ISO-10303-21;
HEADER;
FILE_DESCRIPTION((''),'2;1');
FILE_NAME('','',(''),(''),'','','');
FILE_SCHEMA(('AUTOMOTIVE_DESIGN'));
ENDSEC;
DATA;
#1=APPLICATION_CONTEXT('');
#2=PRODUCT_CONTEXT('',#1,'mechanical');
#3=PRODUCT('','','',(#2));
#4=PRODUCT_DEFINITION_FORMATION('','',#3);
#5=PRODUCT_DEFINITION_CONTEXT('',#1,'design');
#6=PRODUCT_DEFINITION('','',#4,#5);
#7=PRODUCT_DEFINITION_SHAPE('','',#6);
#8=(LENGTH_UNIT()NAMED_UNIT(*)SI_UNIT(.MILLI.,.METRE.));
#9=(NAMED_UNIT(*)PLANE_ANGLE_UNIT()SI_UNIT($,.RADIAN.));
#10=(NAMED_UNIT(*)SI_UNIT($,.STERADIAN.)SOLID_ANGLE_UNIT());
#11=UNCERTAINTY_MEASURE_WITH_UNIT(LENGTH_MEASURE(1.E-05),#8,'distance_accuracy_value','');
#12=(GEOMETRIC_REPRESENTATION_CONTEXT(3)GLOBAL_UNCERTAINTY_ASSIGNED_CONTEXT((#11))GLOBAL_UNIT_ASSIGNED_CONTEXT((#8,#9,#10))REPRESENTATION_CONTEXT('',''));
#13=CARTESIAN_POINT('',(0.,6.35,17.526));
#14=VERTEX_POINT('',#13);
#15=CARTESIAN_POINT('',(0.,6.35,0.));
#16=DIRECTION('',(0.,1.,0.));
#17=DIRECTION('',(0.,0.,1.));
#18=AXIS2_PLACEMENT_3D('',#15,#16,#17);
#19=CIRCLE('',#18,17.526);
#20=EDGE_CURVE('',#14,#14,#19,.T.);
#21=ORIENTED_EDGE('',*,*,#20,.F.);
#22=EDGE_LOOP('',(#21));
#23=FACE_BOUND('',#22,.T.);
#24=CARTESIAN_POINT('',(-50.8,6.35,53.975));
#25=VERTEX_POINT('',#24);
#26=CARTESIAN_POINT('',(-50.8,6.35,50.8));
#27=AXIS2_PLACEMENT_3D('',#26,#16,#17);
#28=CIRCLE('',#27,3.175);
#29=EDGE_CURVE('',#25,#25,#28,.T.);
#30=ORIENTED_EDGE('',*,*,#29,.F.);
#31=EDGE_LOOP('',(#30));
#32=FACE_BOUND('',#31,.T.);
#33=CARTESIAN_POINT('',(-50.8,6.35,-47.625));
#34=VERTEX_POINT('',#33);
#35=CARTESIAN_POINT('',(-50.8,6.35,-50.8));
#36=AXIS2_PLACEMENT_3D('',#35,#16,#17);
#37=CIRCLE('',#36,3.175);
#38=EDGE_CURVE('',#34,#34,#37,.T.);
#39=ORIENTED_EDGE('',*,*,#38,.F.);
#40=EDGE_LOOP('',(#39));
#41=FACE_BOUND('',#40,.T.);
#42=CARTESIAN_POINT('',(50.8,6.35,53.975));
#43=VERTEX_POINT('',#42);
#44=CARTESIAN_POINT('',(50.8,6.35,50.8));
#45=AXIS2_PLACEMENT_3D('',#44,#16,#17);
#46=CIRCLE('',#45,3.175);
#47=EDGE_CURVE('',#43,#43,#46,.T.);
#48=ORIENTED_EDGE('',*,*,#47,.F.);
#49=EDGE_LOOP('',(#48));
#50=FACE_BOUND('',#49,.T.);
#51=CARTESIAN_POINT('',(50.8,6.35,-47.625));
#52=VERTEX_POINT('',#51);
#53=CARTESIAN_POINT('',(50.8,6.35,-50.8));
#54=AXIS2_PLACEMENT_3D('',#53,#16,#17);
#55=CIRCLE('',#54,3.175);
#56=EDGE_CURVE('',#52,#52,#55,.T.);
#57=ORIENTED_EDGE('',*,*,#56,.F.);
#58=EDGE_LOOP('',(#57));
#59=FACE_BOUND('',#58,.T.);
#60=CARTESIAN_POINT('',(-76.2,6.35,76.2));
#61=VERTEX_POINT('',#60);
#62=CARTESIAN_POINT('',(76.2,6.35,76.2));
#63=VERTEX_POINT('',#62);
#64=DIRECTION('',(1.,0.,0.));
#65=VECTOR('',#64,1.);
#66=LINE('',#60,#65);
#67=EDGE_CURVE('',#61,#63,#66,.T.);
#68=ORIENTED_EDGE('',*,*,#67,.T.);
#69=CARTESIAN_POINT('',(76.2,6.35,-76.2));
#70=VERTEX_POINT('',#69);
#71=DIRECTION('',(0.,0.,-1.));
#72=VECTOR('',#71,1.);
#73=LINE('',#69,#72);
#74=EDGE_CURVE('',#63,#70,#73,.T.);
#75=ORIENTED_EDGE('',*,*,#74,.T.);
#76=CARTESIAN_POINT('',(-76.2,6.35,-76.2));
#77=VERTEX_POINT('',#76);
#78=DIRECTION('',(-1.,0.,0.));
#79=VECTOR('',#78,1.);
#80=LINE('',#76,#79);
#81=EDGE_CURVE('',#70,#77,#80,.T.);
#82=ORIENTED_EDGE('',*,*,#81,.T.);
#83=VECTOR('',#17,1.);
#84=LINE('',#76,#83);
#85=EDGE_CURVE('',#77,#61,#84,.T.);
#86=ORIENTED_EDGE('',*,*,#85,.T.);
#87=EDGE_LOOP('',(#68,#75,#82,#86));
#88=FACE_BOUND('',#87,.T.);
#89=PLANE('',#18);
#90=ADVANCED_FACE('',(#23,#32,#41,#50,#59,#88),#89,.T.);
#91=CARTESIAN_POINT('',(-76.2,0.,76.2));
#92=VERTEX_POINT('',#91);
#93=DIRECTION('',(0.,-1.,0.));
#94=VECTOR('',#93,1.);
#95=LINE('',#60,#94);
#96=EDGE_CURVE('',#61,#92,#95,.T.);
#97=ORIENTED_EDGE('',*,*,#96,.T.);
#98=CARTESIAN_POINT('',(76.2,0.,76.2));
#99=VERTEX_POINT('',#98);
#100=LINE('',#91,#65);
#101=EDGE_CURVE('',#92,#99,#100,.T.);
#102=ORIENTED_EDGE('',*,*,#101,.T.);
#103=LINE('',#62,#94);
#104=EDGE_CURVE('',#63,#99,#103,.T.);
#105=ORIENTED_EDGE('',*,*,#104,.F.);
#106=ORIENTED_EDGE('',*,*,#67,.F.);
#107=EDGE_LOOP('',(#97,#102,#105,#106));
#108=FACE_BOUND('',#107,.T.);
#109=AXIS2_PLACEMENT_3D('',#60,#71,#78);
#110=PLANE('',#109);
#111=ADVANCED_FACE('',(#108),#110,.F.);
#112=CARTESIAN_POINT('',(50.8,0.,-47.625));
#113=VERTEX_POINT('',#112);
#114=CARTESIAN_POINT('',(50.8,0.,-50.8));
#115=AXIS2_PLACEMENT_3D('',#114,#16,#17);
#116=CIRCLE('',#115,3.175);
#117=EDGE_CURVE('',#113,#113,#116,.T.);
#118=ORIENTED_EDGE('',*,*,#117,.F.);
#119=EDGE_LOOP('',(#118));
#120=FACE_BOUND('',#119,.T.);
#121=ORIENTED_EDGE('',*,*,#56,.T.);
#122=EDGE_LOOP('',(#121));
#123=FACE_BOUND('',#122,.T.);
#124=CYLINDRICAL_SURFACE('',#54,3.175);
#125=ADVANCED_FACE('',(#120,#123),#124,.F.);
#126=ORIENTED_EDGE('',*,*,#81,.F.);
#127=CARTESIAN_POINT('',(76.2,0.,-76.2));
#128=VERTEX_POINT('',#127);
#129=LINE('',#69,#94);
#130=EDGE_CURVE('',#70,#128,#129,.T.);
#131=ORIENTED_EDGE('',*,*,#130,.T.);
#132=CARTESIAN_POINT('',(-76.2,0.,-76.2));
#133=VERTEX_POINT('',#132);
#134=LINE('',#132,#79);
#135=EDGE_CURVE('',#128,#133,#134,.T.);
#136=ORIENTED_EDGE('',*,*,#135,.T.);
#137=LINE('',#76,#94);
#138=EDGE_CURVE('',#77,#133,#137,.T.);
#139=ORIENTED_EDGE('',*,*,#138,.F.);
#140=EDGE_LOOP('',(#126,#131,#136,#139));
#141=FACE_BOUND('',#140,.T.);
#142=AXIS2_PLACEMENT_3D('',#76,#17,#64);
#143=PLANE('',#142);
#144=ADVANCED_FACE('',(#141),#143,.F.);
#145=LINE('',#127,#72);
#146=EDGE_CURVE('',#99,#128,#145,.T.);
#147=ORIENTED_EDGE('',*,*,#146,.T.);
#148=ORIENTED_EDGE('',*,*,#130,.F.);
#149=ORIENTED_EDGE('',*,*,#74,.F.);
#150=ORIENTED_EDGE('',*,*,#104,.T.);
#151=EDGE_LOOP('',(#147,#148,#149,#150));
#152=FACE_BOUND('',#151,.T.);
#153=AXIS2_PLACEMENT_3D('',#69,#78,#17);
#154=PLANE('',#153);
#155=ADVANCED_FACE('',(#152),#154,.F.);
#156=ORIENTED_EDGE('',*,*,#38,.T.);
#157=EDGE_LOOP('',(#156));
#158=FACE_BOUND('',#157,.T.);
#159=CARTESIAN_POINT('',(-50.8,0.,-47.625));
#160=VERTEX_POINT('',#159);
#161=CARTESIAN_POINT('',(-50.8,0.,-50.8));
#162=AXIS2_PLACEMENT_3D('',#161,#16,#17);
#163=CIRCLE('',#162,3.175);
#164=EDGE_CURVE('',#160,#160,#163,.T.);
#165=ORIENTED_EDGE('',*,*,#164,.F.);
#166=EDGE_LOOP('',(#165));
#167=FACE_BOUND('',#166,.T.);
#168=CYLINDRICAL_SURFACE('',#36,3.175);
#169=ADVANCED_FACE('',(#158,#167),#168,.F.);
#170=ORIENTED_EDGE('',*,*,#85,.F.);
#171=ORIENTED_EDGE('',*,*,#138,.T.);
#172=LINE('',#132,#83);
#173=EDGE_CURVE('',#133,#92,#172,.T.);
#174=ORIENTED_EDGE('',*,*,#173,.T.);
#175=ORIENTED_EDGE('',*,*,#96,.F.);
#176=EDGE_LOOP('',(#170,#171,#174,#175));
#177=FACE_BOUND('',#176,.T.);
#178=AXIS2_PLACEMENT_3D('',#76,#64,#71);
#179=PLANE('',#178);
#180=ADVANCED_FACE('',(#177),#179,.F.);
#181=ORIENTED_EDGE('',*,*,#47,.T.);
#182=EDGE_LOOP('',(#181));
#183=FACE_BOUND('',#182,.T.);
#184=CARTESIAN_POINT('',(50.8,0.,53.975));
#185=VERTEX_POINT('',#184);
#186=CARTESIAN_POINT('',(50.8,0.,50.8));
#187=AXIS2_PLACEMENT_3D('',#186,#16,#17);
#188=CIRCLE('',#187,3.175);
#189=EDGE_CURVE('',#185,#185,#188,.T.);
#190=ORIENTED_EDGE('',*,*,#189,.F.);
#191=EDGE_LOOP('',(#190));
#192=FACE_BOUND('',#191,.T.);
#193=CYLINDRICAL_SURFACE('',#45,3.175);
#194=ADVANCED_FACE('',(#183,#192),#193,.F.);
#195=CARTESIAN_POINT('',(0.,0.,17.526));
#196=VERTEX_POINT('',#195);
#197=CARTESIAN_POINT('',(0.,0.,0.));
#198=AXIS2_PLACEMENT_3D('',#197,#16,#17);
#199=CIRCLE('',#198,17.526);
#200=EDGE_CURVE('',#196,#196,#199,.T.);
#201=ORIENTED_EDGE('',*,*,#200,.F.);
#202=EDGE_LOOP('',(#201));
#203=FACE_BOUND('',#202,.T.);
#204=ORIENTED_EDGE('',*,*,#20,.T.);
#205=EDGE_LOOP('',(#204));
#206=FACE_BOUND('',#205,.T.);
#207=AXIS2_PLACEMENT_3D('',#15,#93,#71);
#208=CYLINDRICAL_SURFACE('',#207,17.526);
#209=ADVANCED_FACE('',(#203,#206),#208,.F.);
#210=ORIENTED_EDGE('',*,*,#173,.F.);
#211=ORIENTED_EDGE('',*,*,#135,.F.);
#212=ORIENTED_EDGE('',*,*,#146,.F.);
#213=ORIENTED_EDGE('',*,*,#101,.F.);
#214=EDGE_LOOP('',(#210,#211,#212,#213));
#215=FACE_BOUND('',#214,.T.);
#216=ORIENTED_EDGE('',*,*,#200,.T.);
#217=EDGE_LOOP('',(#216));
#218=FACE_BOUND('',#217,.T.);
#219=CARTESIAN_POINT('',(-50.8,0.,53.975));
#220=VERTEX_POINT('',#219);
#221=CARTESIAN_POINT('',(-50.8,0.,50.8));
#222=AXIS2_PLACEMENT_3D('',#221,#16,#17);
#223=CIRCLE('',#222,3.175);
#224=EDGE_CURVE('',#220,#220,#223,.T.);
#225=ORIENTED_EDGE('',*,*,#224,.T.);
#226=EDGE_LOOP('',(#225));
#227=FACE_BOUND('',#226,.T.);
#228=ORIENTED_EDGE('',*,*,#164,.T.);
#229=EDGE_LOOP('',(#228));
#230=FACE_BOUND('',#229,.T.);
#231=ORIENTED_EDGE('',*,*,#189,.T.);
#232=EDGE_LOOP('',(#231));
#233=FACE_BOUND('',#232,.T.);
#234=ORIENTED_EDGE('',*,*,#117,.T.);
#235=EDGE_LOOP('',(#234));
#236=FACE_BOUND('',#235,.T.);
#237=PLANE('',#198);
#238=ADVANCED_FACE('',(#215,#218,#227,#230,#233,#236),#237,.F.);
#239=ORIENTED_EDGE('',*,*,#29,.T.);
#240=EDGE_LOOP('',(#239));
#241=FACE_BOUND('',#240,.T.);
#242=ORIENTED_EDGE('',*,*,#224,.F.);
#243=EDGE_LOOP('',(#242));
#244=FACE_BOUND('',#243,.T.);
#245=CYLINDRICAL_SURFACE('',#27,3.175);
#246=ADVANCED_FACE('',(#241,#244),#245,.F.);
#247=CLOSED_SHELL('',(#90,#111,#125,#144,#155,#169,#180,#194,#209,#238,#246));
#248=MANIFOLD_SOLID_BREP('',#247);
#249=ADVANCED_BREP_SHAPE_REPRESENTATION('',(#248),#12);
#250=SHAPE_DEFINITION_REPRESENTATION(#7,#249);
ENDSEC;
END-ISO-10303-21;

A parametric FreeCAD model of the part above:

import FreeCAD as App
import Part
import Sketcher
Q = App.Units.Quantity

doc = App.newDocument("Part")
body = doc.addObject("PartDesign::Body", "Body")

sketch1 = body.newObject("Sketcher::SketchObject", "Sketch")
sketch1.AttachmentSupport = (doc.getObject("XZ_Plane"), [""])
sketch1.MapMode = "FlatFace"
sketch1.addGeometry(Part.LineSegment(App.Vector(-76, -76, 0), App.Vector(-76, 76, 0)), False)
sketch1.addGeometry(Part.LineSegment(App.Vector(-76, 76, 0), App.Vector(76, 76, 0)), False)
sketch1.addGeometry(Part.LineSegment(App.Vector(76, 76, 0), App.Vector(76, -76, 0)), False)
sketch1.addGeometry(Part.LineSegment(App.Vector(76, -76, 0), App.Vector(-76, -76, 0)), False)
sketch1.addGeometry(Part.Circle(App.Vector(0, 0, 0), App.Vector(0, 0, 1), 18), False)
sketch1.addConstraint(Sketcher.Constraint("Coincident", 0, 2, 1, 1))
sketch1.addConstraint(Sketcher.Constraint("Coincident", 1, 2, 2, 1))
sketch1.addConstraint(Sketcher.Constraint("Coincident", 2, 2, 3, 1))
sketch1.addConstraint(Sketcher.Constraint("Coincident", 3, 2, 0, 1))
sketch1.addConstraint(Sketcher.Constraint("Vertical", 0))
sketch1.addConstraint(Sketcher.Constraint("Horizontal", 1))
sketch1.addConstraint(Sketcher.Constraint("Vertical", 2))
sketch1.addConstraint(Sketcher.Constraint("Horizontal", 3))
sketch1.addConstraint(Sketcher.Constraint("Coincident", 4, 3, -1, 1))
sketch1.addConstraint(Sketcher.Constraint("Symmetric", 0, 2, 2, 2, -1, 1))
sketch1.addConstraint(Sketcher.Constraint("Equal", 3, 0))
sketch1.addConstraint(Sketcher.Constraint("Diameter", 4, Q("1.38 in")))
sketch1.addConstraint(Sketcher.Constraint("DistanceX", 1, 1, 1, 2, Q("6 in")))
pad1 = body.newObject("PartDesign::Pad", "Pad")
pad1.Profile = sketch1
pad1.Length = Q("0.25 in")
pad1.Reversed = True

sketch2 = body.newObject("Sketcher::SketchObject", "Sketch001")
sketch2.AttachmentSupport = (doc.getObject("XZ_Plane"), [""])
sketch2.MapMode = "FlatFace"
sketch2.AttachmentOffset = App.Placement(App.Vector(0, 0, -0.25 * 25.4), App.Rotation())
sketch2.addGeometry(Part.Circle(App.Vector(50.8, 50.8, 0), App.Vector(0, 0, 1), 3.2), False)
sketch2.addConstraint(Sketcher.Constraint("Diameter", 0, Q("0.25 in")))
sketch2.addConstraint(Sketcher.Constraint("DistanceX", -1, 1, 0, 3, Q("2 in")))
sketch2.addConstraint(Sketcher.Constraint("DistanceY", -1, 1, 0, 3, Q("2 in")))
doc.recompute()
hole = body.newObject("PartDesign::Hole", "Hole")
hole.Profile = sketch2
hole.ThreadType = "None"
hole.Diameter = Q("0.25 in")
hole.DepthType = "ThroughAll"
hole.Reversed = True
doc.recompute()

polarpattern = body.newObject("PartDesign::PolarPattern", "PolarPattern")
polarpattern.Originals = [hole]
polarpattern.Axis = (doc.getObject("Y_Axis"), [""])
polarpattern.Angle = 360
polarpattern.Occurrences = 4
body.Tip = polarpattern

doc.recompute()
